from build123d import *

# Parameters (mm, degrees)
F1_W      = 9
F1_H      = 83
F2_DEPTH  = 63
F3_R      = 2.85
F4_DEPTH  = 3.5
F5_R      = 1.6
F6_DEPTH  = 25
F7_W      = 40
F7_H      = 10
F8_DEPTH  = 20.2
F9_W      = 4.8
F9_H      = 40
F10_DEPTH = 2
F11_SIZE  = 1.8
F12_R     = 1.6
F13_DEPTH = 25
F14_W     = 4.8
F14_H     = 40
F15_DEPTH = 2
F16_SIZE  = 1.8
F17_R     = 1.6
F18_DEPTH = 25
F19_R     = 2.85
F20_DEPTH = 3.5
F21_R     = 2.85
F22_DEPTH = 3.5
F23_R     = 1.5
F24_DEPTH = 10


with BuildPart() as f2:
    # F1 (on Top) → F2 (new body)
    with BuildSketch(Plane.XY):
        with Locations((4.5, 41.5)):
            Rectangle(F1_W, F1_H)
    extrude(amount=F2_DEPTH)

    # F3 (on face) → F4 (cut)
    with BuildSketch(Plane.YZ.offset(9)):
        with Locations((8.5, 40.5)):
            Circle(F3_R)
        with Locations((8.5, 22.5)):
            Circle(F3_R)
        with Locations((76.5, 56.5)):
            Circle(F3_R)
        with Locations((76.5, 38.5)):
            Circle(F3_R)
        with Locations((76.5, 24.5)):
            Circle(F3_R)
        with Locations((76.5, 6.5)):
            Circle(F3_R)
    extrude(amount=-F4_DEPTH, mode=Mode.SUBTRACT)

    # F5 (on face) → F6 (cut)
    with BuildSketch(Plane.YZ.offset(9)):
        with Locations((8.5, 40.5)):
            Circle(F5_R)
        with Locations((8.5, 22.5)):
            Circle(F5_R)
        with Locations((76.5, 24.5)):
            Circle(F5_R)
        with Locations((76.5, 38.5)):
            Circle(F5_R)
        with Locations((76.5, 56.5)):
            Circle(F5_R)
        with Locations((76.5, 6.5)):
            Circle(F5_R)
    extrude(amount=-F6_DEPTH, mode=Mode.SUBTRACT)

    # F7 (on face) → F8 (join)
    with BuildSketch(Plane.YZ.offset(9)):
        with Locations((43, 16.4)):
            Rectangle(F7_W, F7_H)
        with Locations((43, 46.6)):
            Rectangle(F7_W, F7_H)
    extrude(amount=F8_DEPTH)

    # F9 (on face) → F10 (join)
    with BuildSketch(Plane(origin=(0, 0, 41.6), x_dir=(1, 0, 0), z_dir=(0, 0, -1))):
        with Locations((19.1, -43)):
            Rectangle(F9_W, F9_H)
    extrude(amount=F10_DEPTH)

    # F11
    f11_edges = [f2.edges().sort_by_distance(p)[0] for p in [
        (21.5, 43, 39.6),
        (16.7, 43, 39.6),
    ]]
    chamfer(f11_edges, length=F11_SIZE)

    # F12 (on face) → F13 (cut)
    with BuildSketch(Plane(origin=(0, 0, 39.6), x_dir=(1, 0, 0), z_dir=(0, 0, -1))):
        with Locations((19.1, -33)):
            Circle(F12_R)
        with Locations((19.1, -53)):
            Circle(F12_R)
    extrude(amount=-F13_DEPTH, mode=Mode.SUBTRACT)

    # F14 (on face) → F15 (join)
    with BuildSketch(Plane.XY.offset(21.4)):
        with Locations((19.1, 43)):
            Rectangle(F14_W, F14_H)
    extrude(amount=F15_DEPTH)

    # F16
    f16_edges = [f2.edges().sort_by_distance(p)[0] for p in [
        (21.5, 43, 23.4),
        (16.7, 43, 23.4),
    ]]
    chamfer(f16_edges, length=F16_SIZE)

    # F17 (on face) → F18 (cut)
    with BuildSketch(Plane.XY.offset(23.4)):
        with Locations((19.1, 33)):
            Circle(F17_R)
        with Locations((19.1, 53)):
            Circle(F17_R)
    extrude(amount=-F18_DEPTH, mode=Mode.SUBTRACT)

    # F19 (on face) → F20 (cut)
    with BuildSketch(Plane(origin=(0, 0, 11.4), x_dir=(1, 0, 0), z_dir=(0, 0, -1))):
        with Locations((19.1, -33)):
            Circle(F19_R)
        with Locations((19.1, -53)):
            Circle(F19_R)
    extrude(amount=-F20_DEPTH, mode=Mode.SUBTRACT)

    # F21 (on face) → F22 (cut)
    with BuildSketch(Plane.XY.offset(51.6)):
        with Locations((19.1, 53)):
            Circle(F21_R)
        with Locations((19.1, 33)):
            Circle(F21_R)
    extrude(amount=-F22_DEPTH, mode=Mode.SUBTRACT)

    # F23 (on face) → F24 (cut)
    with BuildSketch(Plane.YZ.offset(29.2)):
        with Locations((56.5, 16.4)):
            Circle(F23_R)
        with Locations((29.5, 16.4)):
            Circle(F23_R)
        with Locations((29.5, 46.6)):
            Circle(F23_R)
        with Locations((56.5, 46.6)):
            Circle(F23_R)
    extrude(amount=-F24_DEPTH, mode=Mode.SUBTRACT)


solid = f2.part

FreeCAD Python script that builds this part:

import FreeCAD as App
import Part
import Sketcher

V = App.Vector
Q = App.Units.Quantity


def edges_at(feature, points):
    """Names of the edges that pass closest to the given points."""
    edges = feature.Shape.Edges
    near = lambda p: min(range(len(edges)), key=lambda i: edges[i].distToShape(Part.Vertex(*p))[0])
    return sorted({f"Edge{near(p) + 1}" for p in points})

doc = App.newDocument("Part")
body = doc.addObject("PartDesign::Body", "Body")

# Sketch on XY plane
sketch1 = body.newObject("Sketcher::SketchObject", "Sketch")
sketch1.AttachmentSupport = (doc.getObject("XY_Plane"), [""])
sketch1.MapMode = "FlatFace"
sketch1.addGeometry([
    Part.LineSegment(V(0, 83, 0), V(0, 0, 0)),
    Part.LineSegment(V(0, 0, 0), V(9, 0, 0)),
    Part.LineSegment(V(9, 0, 0), V(9, 83, 0)),
    Part.LineSegment(V(9, 83, 0), V(0, 83, 0)),
], False)
sketch1.addConstraint([
    Sketcher.Constraint("Coincident", 0, 2, 1, 1),
    Sketcher.Constraint("Coincident", 1, 2, 2, 1),
    Sketcher.Constraint("Coincident", 2, 2, 3, 1),
    Sketcher.Constraint("Coincident", 3, 2, 0, 1),
    Sketcher.Constraint("Vertical", 0),
    Sketcher.Constraint("Horizontal", 1),
    Sketcher.Constraint("Vertical", 2),
    Sketcher.Constraint("Horizontal", 3),
    Sketcher.Constraint("Coincident", 0, 2, -1, 1),
    Sketcher.Constraint("DistanceX", 1, 1, 1, 2, Q("9 mm")),
    Sketcher.Constraint("DistanceY", 0, 2, 0, 1, Q("83 mm")),
])
pad1 = body.newObject("PartDesign::Pad", "Pad")
pad1.Profile = sketch1
pad1.Length = 63

# Sketch on YZ plane
sketch2 = body.newObject("Sketcher::SketchObject", "Sketch001")
sketch2.AttachmentSupport = (doc.getObject("YZ_Plane"), [""])
sketch2.MapMode = "FlatFace"
sketch2.AttachmentOffset = App.Placement(V(0, 0, 9), App.Rotation())
sketch2.addGeometry([
    Part.Circle(V(8.5, 40.5, 0), V(0, 0, 1), 2.9),  # 0
    Part.Circle(V(8.5, 22.5, 0), V(0, 0, 1), 2.9),  # 1
    Part.Circle(V(76.5, 56.5, 0), V(0, 0, 1), 2.9),  # 2
    Part.Circle(V(76.5, 38.5, 0), V(0, 0, 1), 2.9),  # 3
    Part.Circle(V(76.5, 24.5, 0), V(0, 0, 1), 2.9),  # 4
    Part.Circle(V(76.5, 6.5, 0), V(0, 0, 1), 2.9),  # 5
], False)
sketch2.addConstraint([
    Sketcher.Constraint("Equal", 0, 1),
    Sketcher.Constraint("Equal", 1, 2),
    Sketcher.Constraint("Equal", 2, 3),
    Sketcher.Constraint("Equal", 3, 4),
    Sketcher.Constraint("Equal", 4, 5),
    Sketcher.Constraint("Vertical", 0, 3, 1, 3),
    Sketcher.Constraint("Vertical", 2, 3, 3, 3),
    Sketcher.Constraint("Vertical", 3, 3, 4, 3),
    Sketcher.Constraint("Vertical", 4, 3, 5, 3),
    Sketcher.Constraint("Diameter", 0, Q("5.7 mm")),
    Sketcher.Constraint("DistanceY", 1, 3, 0, 3, Q("18 mm")),
    Sketcher.Constraint("DistanceX", 0, 3, 2, 3, Q("68 mm")),
    Sketcher.Constraint("DistanceY", 0, 3, 2, 3, Q("16 mm")),
    Sketcher.Constraint("DistanceY", 3, 3, 2, 3, Q("18 mm")),
    Sketcher.Constraint("DistanceY", 4, 3, 3, 3, Q("14 mm")),
    Sketcher.Constraint("DistanceY", 5, 3, 4, 3, Q("18 mm")),
    Sketcher.Constraint("DistanceX", -1, 1, 0, 3, Q("8.5 mm")),
    Sketcher.Constraint("DistanceY", -1, 1, 0, 3, Q("40.5 mm")),
])
pocket1 = body.newObject("PartDesign::Pocket", "Pocket")
pocket1.Profile = sketch2
pocket1.Length = 3.5

# Sketch on YZ plane
sketch3 = body.newObject("Sketcher::SketchObject", "Sketch002")
sketch3.AttachmentSupport = (doc.getObject("YZ_Plane"), [""])
sketch3.MapMode = "FlatFace"
sketch3.AttachmentOffset = App.Placement(V(0, 0, 9), App.Rotation())
sketch3.addGeometry([
    Part.Circle(V(8.5, 40.5, 0), V(0, 0, 1), 1.6),  # 0
    Part.Circle(V(8.5, 22.5, 0), V(0, 0, 1), 1.6),  # 1
    Part.Circle(V(76.5, 24.5, 0), V(0, 0, 1), 1.6),  # 2
    Part.Circle(V(76.5, 38.5, 0), V(0, 0, 1), 1.6),  # 3
    Part.Circle(V(76.5, 56.5, 0), V(0, 0, 1), 1.6),  # 4
    Part.Circle(V(76.5, 6.5, 0), V(0, 0, 1), 1.6),  # 5
], False)
sketch3.addConstraint([
    Sketcher.Constraint("Equal", 0, 1),
    Sketcher.Constraint("Equal", 1, 2),
    Sketcher.Constraint("Equal", 2, 3),
    Sketcher.Constraint("Equal", 3, 4),
    Sketcher.Constraint("Equal", 4, 5),
    Sketcher.Constraint("Vertical", 0, 3, 1, 3),
    Sketcher.Constraint("Vertical", 2, 3, 3, 3),
    Sketcher.Constraint("Vertical", 3, 3, 4, 3),
    Sketcher.Constraint("Vertical", 4, 3, 5, 3),
    Sketcher.Constraint("Diameter", 0, Q("3.2 mm")),
    Sketcher.Constraint("DistanceY", 1, 3, 0, 3, Q("18 mm")),
    Sketcher.Constraint("DistanceX", 1, 3, 2, 3, Q("68 mm")),
    Sketcher.Constraint("DistanceY", 1, 3, 2, 3, Q("2 mm")),
    Sketcher.Constraint("DistanceY", 2, 3, 3, 3, Q("14 mm")),
    Sketcher.Constraint("DistanceY", 3, 3, 4, 3, Q("18 mm")),
    Sketcher.Constraint("DistanceY", 5, 3, 2, 3, Q("18 mm")),
    Sketcher.Constraint("DistanceX", -1, 1, 0, 3, Q("8.5 mm")),
    Sketcher.Constraint("DistanceY", -1, 1, 0, 3, Q("40.5 mm")),
])
pocket2 = body.newObject("PartDesign::Pocket", "Pocket001")
pocket2.Profile = sketch3
pocket2.Length = 25

# Sketch on YZ plane
sketch4 = body.newObject("Sketcher::SketchObject", "Sketch003")
sketch4.AttachmentSupport = (doc.getObject("YZ_Plane"), [""])
sketch4.MapMode = "FlatFace"
sketch4.AttachmentOffset = App.Placement(V(0, 0, 9), App.Rotation())
sketch4.addGeometry([
    Part.LineSegment(V(23, 21, 0), V(23, 11, 0)),  # 0
    Part.LineSegment(V(23, 11, 0), V(63, 11, 0)),  # 1
    Part.LineSegment(V(63, 11, 0), V(63, 21, 0)),  # 2
    Part.LineSegment(V(63, 21, 0), V(23, 21, 0)),  # 3
    Part.LineSegment(V(23, 52, 0), V(23, 42, 0)),  # 4
    Part.LineSegment(V(23, 42, 0), V(63, 42, 0)),  # 5
    Part.LineSegment(V(63, 42, 0), V(63, 52, 0)),  # 6
    Part.LineSegment(V(63, 52, 0), V(23, 52, 0)),  # 7
], False)
sketch4.addConstraint([
    Sketcher.Constraint("Coincident", 0, 2, 1, 1),
    Sketcher.Constraint("Coincident", 1, 2, 2, 1),
    Sketcher.Constraint("Coincident", 2, 2, 3, 1),
    Sketcher.Constraint("Coincident", 3, 2, 0, 1),
    Sketcher.Constraint("Coincident", 4, 2, 5, 1),
    Sketcher.Constraint("Coincident", 5, 2, 6, 1),
    Sketcher.Constraint("Coincident", 6, 2, 7, 1),
    Sketcher.Constraint("Coincident", 7, 2, 4, 1),
    Sketcher.Constraint("Vertical", 0),
    Sketcher.Constraint("Horizontal", 1),
    Sketcher.Constraint("Vertical", 2),
    Sketcher.Constraint("Horizontal", 3),
    Sketcher.Constraint("Vertical", 4),
    Sketcher.Constraint("Horizontal", 5),
    Sketcher.Constraint("Vertical", 6),
    Sketcher.Constraint("Horizontal", 7),
    Sketcher.Constraint("Vertical", 3, 2, 4, 2),
    Sketcher.Constraint("Vertical", 2, 2, 5, 2),
    Sketcher.Constraint("Equal", 2, 4),
    Sketcher.Constraint("DistanceX", 1, 1, 1, 2, Q("40 mm")),
    Sketcher.Constraint("DistanceY", 0, 2, 0, 1, Q("10 mm")),
    Sketcher.Constraint("DistanceX", -1, 1, 0, 2, Q("23 mm")),
    Sketcher.Constraint("DistanceY", -1, 1, 0, 2, Q("11.4 mm")),
    Sketcher.Constraint("DistanceY", -1, 1, 4, 2, Q("41.6 mm")),
])
pad2 = body.newObject("PartDesign::Pad", "Pad001")
pad2.Profile = sketch4
pad2.Length = 20.2

# Sketch on XY plane
sketch5 = body.newObject("Sketcher::SketchObject", "Sketch004")
sketch5.AttachmentSupport = (doc.getObject("XY_Plane"), [""])
sketch5.MapMode = "FlatFace"
sketch5.AttachmentOffset = App.Placement(V(0, 0, 41.6), App.Rotation())
sketch5.addGeometry([
    Part.LineSegment(V(16.7, 23, 0), V(16.7, 63, 0)),
    Part.LineSegment(V(16.7, 63, 0), V(21.5, 63, 0)),
    Part.LineSegment(V(21.5, 63, 0), V(21.5, 23, 0)),
    Part.LineSegment(V(21.5, 23, 0), V(16.7, 23, 0)),
], False)
sketch5.addConstraint([
    Sketcher.Constraint("Coincident", 0, 2, 1, 1),
    Sketcher.Constraint("Coincident", 1, 2, 2, 1),
    Sketcher.Constraint("Coincident", 2, 2, 3, 1),
    Sketcher.Constraint("Coincident", 3, 2, 0, 1),
    Sketcher.Constraint("Vertical", 0),
    Sketcher.Constraint("Horizontal", 1),
    Sketcher.Constraint("Vertical", 2),
    Sketcher.Constraint("Horizontal", 3),
    Sketcher.Constraint("DistanceY", 0, 1, 0, 2, Q("40 mm")),
    Sketcher.Constraint("DistanceX", 1, 1, 1, 2, Q("4.8 mm")),
    Sketcher.Constraint("DistanceY", -1, 1, 0, 2, Q("63 mm")),
    Sketcher.Constraint("DistanceX", -1, 1, 0, 2, Q("16.7 mm")),
])
pad3 = body.newObject("PartDesign::Pad", "Pad002")
pad3.Profile = sketch5
pad3.Length = 2
pad3.Reversed = True
doc.recompute()

chamfer = body.newObject("PartDesign::Chamfer", "Chamfer")
chamfer.Base = (pad3, edges_at(pad3, [(21.5, 43, 39.6), (16.7, 43, 39.6)]))
chamfer.Size = 1.8

# Sketch on XY plane
sketch6 = body.newObject("Sketcher::SketchObject", "Sketch005")
sketch6.AttachmentSupport = (doc.getObject("XY_Plane"), [""])
sketch6.MapMode = "FlatFace"
sketch6.AttachmentOffset = App.Placement(V(0, 0, 39.6), App.Rotation())
sketch6.addGeometry([
    Part.Circle(V(19.1, 33, 0), V(0, 0, 1), 1.6),
    Part.Circle(V(19.1, 53, 0), V(0, 0, 1), 1.6),
], False)
sketch6.addConstraint([
    Sketcher.Constraint("Equal", 0, 1),
    Sketcher.Constraint("Vertical", 0, 3, 1, 3),
    Sketcher.Constraint("Diameter", 0, Q("3.2 mm")),
    Sketcher.Constraint("DistanceY", -1, 1, 0, 3, Q("33 mm")),
    Sketcher.Constraint("DistanceY", -1, 1, 1, 3, Q("53 mm")),
    Sketcher.Constraint("DistanceX", -1, 1, 0, 3, Q("19.1 mm")),
])
pocket3 = body.newObject("PartDesign::Pocket", "Pocket002")
pocket3.Profile = sketch6
pocket3.Length = 25
pocket3.Reversed = True

# Sketch on XY plane
sketch7 = body.newObject("Sketcher::SketchObject", "Sketch006")
sketch7.AttachmentSupport = (doc.getObject("XY_Plane"), [""])
sketch7.MapMode = "FlatFace"
sketch7.AttachmentOffset = App.Placement(V(0, 0, 21.4), App.Rotation())
sketch7.addGeometry([
    Part.LineSegment(V(16.7, 63, 0), V(16.7, 23, 0)),
    Part.LineSegment(V(16.7, 23, 0), V(21.5, 23, 0)),
    Part.LineSegment(V(21.5, 23, 0), V(21.5, 63, 0)),
    Part.LineSegment(V(21.5, 63, 0), V(16.7, 63, 0)),
], False)
sketch7.addConstraint([
    Sketcher.Constraint("Coincident", 0, 2, 1, 1),
    Sketcher.Constraint("Coincident", 1, 2, 2, 1),
    Sketcher.Constraint("Coincident", 2, 2, 3, 1),
    Sketcher.Constraint("Coincident", 3, 2, 0, 1),
    Sketcher.Constraint("Vertical", 0),
    Sketcher.Constraint("Horizontal", 1),
    Sketcher.Constraint("Vertical", 2),
    Sketcher.Constraint("Horizontal", 3),
    Sketcher.Constraint("DistanceY", 0, 2, 0, 1, Q("40 mm")),
    Sketcher.Constraint("DistanceX", 1, 1, 1, 2, Q("4.8 mm")),
    Sketcher.Constraint("DistanceY", -1, 1, 0, 2, Q("23 mm")),
    Sketcher.Constraint("DistanceX", -1, 1, 0, 2, Q("16.7 mm")),
])
pad4 = body.newObject("PartDesign::Pad", "Pad003")
pad4.Profile = sketch7
pad4.Length = 2
doc.recompute()

chamfer2 = body.newObject("PartDesign::Chamfer", "Chamfer001")
chamfer2.Base = (pad4, edges_at(pad4, [(21.5, 43, 23.4), (16.7, 43, 23.4)]))
chamfer2.Size = 1.8

# Sketch on XY plane
sketch8 = body.newObject("Sketcher::SketchObject", "Sketch007")
sketch8.AttachmentSupport = (doc.getObject("XY_Plane"), [""])
sketch8.MapMode = "FlatFace"
sketch8.AttachmentOffset = App.Placement(V(0, 0, 23.4), App.Rotation())
sketch8.addGeometry([
    Part.Circle(V(19.1, 33, 0), V(0, 0, 1), 1.6),
    Part.Circle(V(19.1, 53, 0), V(0, 0, 1), 1.6),
], False)
sketch8.addConstraint([
    Sketcher.Constraint("Equal", 0, 1),
    Sketcher.Constraint("Vertical", 0, 3, 1, 3),
    Sketcher.Constraint("Diameter", 0, Q("3.2 mm")),
    Sketcher.Constraint("DistanceY", -1, 1, 0, 3, Q("33 mm")),
    Sketcher.Constraint("DistanceY", -1, 1, 1, 3, Q("53 mm")),
    Sketcher.Constraint("DistanceX", -1, 1, 0, 3, Q("19.1 mm")),
])
pocket4 = body.newObject("PartDesign::Pocket", "Pocket003")
pocket4.Profile = sketch8
pocket4.Length = 25

# Sketch on XY plane
sketch9 = body.newObject("Sketcher::SketchObject", "Sketch008")
sketch9.AttachmentSupport = (doc.getObject("XY_Plane"), [""])
sketch9.MapMode = "FlatFace"
sketch9.AttachmentOffset = App.Placement(V(0, 0, 11.4), App.Rotation())
sketch9.addGeometry([
    Part.Circle(V(19.1, 33, 0), V(0, 0, 1), 2.9),
    Part.Circle(V(19.1, 53, 0), V(0, 0, 1), 2.9),
], False)
sketch9.addConstraint([
    Sketcher.Constraint("Equal", 0, 1),
    Sketcher.Constraint("Vertical", 0, 3, 1, 3),
    Sketcher.Constraint("Diameter", 0, Q("5.7 mm")),
    Sketcher.Constraint("DistanceY", -1, 1, 0, 3, Q("33 mm")),
    Sketcher.Constraint("DistanceY", -1, 1, 1, 3, Q("53 mm")),
    Sketcher.Constraint("DistanceX", -1, 1, 0, 3, Q("19.1 mm")),
])
pocket5 = body.newObject("PartDesign::Pocket", "Pocket004")
pocket5.Profile = sketch9
pocket5.Length = 3.5
pocket5.Reversed = True

# Sketch on XY plane
sketch10 = body.newObject("Sketcher::SketchObject", "Sketch009")
sketch10.AttachmentSupport = (doc.getObject("XY_Plane"), [""])
sketch10.MapMode = "FlatFace"
sketch10.AttachmentOffset = App.Placement(V(0, 0, 51.6), App.Rotation())
sketch10.addGeometry([
    Part.Circle(V(19.1, 53, 0), V(0, 0, 1), 2.9),
    Part.Circle(V(19.1, 33, 0), V(0, 0, 1), 2.9),
], False)
sketch10.addConstraint([
    Sketcher.Constraint("Equal", 0, 1),
    Sketcher.Constraint("Vertical", 0, 3, 1, 3),
    Sketcher.Constraint("Diameter", 0, Q("5.7 mm")),
    Sketcher.Constraint("DistanceY", -1, 1, 0, 3, Q("53 mm")),
    Sketcher.Constraint("DistanceY", -1, 1, 1, 3, Q("33 mm")),
    Sketcher.Constraint("DistanceX", -1, 1, 0, 3, Q("19.1 mm")),
])
pocket6 = body.newObject("PartDesign::Pocket", "Pocket005")
pocket6.Profile = sketch10
pocket6.Length = 3.5

# Sketch on YZ plane
sketch11 = body.newObject("Sketcher::SketchObject", "Sketch010")
sketch11.AttachmentSupport = (doc.getObject("YZ_Plane"), [""])
sketch11.MapMode = "FlatFace"
sketch11.AttachmentOffset = App.Placement(V(0, 0, 29.2), App.Rotation())
sketch11.addGeometry([
    Part.Circle(V(56.5, 16.4, 0), V(0, 0, 1), 1.5),
    Part.Circle(V(29.5, 16.4, 0), V(0, 0, 1), 1.5),
    Part.Circle(V(29.5, 46.6, 0), V(0, 0, 1), 1.5),
    Part.Circle(V(56.5, 46.6, 0), V(0, 0, 1), 1.5),
], False)
sketch11.addConstraint([
    Sketcher.Constraint("Equal", 0, 1),
    Sketcher.Constraint("Equal", 1, 2),
    Sketcher.Constraint("Equal", 2, 3),
    Sketcher.Constraint("Horizontal", 0, 3, 1, 3),
    Sketcher.Constraint("Horizontal", 2, 3, 3, 3),
    Sketcher.Constraint("Vertical", 1, 3, 2, 3),
    Sketcher.Constraint("Vertical", 0, 3, 3, 3),
    Sketcher.Constraint("Diameter", 0, Q("3 mm")),
    Sketcher.Constraint("DistanceX", 1, 3, 0, 3, Q("27 mm")),
    Sketcher.Constraint("DistanceX", -1, 1, 0, 3, Q("56.5 mm")),
    Sketcher.Constraint("DistanceY", -1, 1, 0, 3, Q("16.4 mm")),
    Sketcher.Constraint("DistanceY", -1, 1, 2, 3, Q("46.6 mm")),
])
pocket7 = body.newObject("PartDesign::Pocket", "Pocket006")
pocket7.Profile = sketch11
pocket7.Length = 10

doc.recompute()
